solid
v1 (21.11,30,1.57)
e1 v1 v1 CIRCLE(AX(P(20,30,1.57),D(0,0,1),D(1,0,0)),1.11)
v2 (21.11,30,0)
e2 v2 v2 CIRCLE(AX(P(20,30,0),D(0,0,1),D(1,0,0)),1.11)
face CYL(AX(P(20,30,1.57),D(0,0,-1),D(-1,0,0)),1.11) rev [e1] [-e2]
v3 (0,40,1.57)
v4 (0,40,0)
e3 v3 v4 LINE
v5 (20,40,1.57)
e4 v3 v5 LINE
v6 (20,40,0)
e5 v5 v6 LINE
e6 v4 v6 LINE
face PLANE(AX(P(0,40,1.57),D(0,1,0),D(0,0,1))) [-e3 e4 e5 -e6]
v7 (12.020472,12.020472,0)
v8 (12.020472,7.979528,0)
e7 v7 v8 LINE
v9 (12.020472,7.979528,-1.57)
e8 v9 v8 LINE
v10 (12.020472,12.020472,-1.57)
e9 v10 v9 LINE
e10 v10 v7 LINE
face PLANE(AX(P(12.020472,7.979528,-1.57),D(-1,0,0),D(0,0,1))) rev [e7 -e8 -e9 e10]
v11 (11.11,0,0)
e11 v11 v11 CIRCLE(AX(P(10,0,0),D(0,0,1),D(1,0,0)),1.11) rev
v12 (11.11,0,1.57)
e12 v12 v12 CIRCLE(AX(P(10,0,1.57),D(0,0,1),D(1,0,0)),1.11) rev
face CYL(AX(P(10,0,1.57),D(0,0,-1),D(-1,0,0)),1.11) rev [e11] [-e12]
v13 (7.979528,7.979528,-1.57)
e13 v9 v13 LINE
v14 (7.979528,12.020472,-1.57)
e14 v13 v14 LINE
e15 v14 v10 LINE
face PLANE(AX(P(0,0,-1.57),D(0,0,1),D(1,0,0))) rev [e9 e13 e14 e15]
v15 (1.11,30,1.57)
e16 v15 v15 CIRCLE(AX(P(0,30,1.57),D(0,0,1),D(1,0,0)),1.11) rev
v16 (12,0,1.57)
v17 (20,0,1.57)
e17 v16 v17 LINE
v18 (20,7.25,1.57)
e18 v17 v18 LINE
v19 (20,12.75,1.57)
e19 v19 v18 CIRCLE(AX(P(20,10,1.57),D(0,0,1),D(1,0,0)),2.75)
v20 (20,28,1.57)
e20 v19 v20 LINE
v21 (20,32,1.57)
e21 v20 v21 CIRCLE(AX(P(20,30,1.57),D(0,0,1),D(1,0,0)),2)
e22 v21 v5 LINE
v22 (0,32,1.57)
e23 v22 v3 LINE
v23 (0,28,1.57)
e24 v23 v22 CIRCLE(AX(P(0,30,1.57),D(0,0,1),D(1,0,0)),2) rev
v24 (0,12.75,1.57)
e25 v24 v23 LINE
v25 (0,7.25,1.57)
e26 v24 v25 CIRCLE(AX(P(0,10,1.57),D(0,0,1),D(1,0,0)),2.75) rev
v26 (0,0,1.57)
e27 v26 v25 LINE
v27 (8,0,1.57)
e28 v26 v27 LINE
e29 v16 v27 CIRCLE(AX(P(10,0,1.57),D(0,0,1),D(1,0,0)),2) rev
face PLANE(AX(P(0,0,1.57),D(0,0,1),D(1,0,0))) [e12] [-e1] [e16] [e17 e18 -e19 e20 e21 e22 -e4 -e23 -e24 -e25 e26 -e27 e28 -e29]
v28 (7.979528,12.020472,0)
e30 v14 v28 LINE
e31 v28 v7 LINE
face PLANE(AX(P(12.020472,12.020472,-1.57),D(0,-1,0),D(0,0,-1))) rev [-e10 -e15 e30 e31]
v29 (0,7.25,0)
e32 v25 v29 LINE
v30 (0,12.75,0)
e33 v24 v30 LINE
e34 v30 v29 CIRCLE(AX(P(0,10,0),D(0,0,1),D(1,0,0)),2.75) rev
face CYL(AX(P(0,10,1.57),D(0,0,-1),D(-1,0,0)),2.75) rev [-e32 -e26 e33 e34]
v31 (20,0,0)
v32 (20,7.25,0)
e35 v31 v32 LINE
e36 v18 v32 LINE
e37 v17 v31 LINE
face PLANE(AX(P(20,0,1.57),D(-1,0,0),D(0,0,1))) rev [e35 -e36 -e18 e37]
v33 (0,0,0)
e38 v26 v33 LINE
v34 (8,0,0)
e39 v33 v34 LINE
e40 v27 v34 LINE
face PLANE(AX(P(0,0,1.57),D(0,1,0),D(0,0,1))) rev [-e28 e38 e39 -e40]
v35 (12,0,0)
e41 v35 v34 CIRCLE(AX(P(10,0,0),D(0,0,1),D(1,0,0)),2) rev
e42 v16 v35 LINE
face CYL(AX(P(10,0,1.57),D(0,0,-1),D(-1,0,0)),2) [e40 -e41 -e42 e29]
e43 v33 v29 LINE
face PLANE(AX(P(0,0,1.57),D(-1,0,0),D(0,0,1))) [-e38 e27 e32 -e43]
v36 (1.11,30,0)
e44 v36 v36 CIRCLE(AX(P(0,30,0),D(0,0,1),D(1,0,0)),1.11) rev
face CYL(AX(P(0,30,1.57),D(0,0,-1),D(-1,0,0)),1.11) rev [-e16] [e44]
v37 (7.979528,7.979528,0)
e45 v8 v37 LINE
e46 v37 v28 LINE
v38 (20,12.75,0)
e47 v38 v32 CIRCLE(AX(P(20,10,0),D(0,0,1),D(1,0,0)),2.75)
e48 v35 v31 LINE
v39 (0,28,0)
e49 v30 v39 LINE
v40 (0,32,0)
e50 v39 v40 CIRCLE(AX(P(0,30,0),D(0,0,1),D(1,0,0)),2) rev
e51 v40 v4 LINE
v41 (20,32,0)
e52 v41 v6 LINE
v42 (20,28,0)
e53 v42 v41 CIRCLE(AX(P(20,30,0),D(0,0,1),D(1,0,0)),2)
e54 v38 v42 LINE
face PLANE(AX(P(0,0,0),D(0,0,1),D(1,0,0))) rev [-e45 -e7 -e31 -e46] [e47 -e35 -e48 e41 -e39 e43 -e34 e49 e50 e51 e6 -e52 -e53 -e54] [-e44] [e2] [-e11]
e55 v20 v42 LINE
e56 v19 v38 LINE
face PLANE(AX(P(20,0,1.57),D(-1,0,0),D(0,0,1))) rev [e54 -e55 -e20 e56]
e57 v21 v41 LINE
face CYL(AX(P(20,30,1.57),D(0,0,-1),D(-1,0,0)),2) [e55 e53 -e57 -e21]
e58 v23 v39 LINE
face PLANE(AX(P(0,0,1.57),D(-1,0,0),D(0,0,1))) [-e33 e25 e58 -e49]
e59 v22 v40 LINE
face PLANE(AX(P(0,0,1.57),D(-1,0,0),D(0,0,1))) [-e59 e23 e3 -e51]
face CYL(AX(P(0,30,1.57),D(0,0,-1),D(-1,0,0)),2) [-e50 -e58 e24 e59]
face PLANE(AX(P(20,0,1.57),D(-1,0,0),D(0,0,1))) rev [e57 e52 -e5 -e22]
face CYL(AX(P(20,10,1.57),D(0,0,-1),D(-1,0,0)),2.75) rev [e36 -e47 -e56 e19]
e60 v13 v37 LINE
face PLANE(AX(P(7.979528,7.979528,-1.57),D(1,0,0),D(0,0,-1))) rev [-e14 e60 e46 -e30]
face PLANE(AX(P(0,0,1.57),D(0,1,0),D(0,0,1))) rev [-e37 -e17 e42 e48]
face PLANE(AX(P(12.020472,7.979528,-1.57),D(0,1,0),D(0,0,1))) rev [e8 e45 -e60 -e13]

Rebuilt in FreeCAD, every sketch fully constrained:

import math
import FreeCAD as App
import Part
import Sketcher

V = App.Vector
Q = App.Units.Quantity

doc = App.newDocument("Part")
body = doc.addObject("PartDesign::Body", "Body")

sketch1 = body.newObject("Sketcher::SketchObject", "Sketch")
sketch1.AttachmentSupport = (doc.getObject("XY_Plane"), [""])
sketch1.MapMode = "FlatFace"
sketch1.addGeometry([
    Part.LineSegment(V(0, 0, 0), V(8, 0, 0)),
    Part.ArcOfCircle(Part.Circle(V(10, 0, 0), V(0, 0, 1), 2), math.radians(180), math.radians(360)),
    Part.LineSegment(V(12, 0, 0), V(20, 0, 0)),
    Part.LineSegment(V(20, 0, 0), V(20, 7.25, 0)),
    Part.ArcOfCircle(Part.Circle(V(20, 10, 0), V(0, 0, 1), 2.75), math.radians(90), math.radians(270)),
    Part.LineSegment(V(20, 12.75, 0), V(20, 28, 0)),
    Part.ArcOfCircle(Part.Circle(V(20, 30, 0), V(0, 0, 1), 2), math.radians(-90), math.radians(0)),
    Part.ArcOfCircle(Part.Circle(V(20, 30, 0), V(0, 0, 1), 2), math.radians(0), math.radians(90)),
    Part.LineSegment(V(20, 32, 0), V(20, 40, 0)),
    Part.LineSegment(V(20, 40, 0), V(0, 40, 0)),
    Part.LineSegment(V(0, 40, 0), V(0, 32, 0)),
    Part.ArcOfCircle(Part.Circle(V(0, 30, 0), V(0, 0, 1), 2), math.radians(90), math.radians(270)),
    Part.LineSegment(V(0, 28, 0), V(0, 12.75, 0)),
    Part.ArcOfCircle(Part.Circle(V(0, 10, 0), V(0, 0, 1), 2.75), math.radians(0), math.radians(90)),
    Part.ArcOfCircle(Part.Circle(V(0, 10, 0), V(0, 0, 1), 2.75), math.radians(-90), math.radians(0)),
    Part.LineSegment(V(0, 7.25, 0), V(0, 0, 0)),
    Part.ArcOfCircle(Part.Circle(V(10, 0, 0), V(0, 0, 1), 1.11), math.radians(180), math.radians(360)),
    Part.ArcOfCircle(Part.Circle(V(10, 0, 0), V(0, 0, 1), 1.11), math.radians(90), math.radians(180)),
    Part.ArcOfCircle(Part.Circle(V(10, 0, 0), V(0, 0, 1), 1.11), math.radians(0), math.radians(90)),
    Part.ArcOfCircle(Part.Circle(V(0, 30, 0), V(0, 0, 1), 1.11), math.radians(90), math.radians(270)),
    Part.ArcOfCircle(Part.Circle(V(0, 30, 0), V(0, 0, 1), 1.11), math.radians(0), math.radians(90)),
    Part.ArcOfCircle(Part.Circle(V(0, 30, 0), V(0, 0, 1), 1.11), math.radians(-90), math.radians(0)),
    Part.ArcOfCircle(Part.Circle(V(20, 30, 0), V(0, 0, 1), 1.11), math.radians(90), math.radians(270)),
    Part.ArcOfCircle(Part.Circle(V(20, 30, 0), V(0, 0, 1), 1.11), math.radians(0), math.radians(90)),
    Part.ArcOfCircle(Part.Circle(V(20, 30, 0), V(0, 0, 1), 1.11), math.radians(-90), math.radians(0)),
], False)
sketch1.addConstraint([
    Sketcher.Constraint("Coincident", 0, 2, 1, 1),
    Sketcher.Constraint("Coincident", 1, 2, 2, 1),
    Sketcher.Constraint("Coincident", 2, 2, 3, 1),
    Sketcher.Constraint("Coincident", 3, 2, 4, 2),
    Sketcher.Constraint("Coincident", 4, 1, 5, 1),
    Sketcher.Constraint("Coincident", 5, 2, 6, 1),
    Sketcher.Constraint("Tangent", 6, 2, 7, 1),
    Sketcher.Constraint("Coincident", 7, 2, 8, 1),
    Sketcher.Constraint("Coincident", 8, 2, 9, 1),
    Sketcher.Constraint("Coincident", 9, 2, 10, 1),
    Sketcher.Constraint("Coincident", 10, 2, 11, 1),
    Sketcher.Constraint("Coincident", 11, 2, 12, 1),
    Sketcher.Constraint("Coincident", 12, 2, 13, 2),
    Sketcher.Constraint("Tangent", 13, 1, 14, 2),
    Sketcher.Constraint("Coincident", 14, 1, 15, 1),
    Sketcher.Constraint("Coincident", 15, 2, 0, 1),
    Sketcher.Constraint("Tangent", 16, 1, 17, 2),
    Sketcher.Constraint("Tangent", 17, 1, 18, 2),
    Sketcher.Constraint("Tangent", 18, 1, 16, 2),
    Sketcher.Constraint("Tangent", 19, 1, 20, 2),
    Sketcher.Constraint("Tangent", 20, 1, 21, 2),
    Sketcher.Constraint("Tangent", 21, 1, 19, 2),
    Sketcher.Constraint("Tangent", 22, 1, 23, 2),
    Sketcher.Constraint("Tangent", 23, 1, 24, 2),
    Sketcher.Constraint("Tangent", 24, 1, 22, 2),
    Sketcher.Constraint("Horizontal", 0),
    Sketcher.Constraint("Horizontal", 2),
    Sketcher.Constraint("Vertical", 3),
    Sketcher.Constraint("Vertical", 5),
    Sketcher.Constraint("Vertical", 8),
    Sketcher.Constraint("Horizontal", 9),
    Sketcher.Constraint("Vertical", 10),
    Sketcher.Constraint("Vertical", 12),
    Sketcher.Constraint("Vertical", 15),
    Sketcher.Constraint("Coincident", 15, 2, -1, 1),
    Sketcher.Constraint("Coincident", 16, 3, 1, 3),
    Sketcher.Constraint("Coincident", 19, 3, 11, 3),
    Sketcher.Constraint("Coincident", 22, 3, 6, 3),
    Sketcher.Constraint("Equal", 1, 6),
    Sketcher.Constraint("Equal", 6, 7),
    Sketcher.Constraint("Equal", 7, 11),
    Sketcher.Constraint("Equal", 4, 13),
    Sketcher.Constraint("Equal", 13, 14),
    Sketcher.Constraint("Equal", 18, 19),
    Sketcher.Constraint("Equal", 21, 22),
    Sketcher.Constraint("PointOnObject", 1, 3, -1),
    Sketcher.Constraint("PointOnObject", 11, 3, -2),
    Sketcher.Constraint("PointOnObject", 13, 3, -2),
    Sketcher.Constraint("PointOnObject", 1, 2, -1),
    Sketcher.Constraint("PointOnObject", 9, 2, -2),
    Sketcher.Constraint("PointOnObject", 11, 2, -2),
    Sketcher.Constraint("PointOnObject", 16, 1, -1),
    Sketcher.Constraint("PointOnObject", 18, 1, -1),
    Sketcher.Constraint("PointOnObject", 19, 1, -2),
    Sketcher.Constraint("PointOnObject", 21, 1, -2),
    Sketcher.Constraint("Horizontal", 7, 3, 11, 3),
    Sketcher.Constraint("Horizontal", 4, 3, 13, 3),
    Sketcher.Constraint("Horizontal", 24, 3, 6, 2),
    Sketcher.Constraint("Horizontal", 14, 3, 13, 1),
    Sketcher.Constraint("Horizontal", 6, 2, 20, 1),
    Sketcher.Constraint("Horizontal", 20, 1, 23, 1),
    Sketcher.Constraint("Vertical", 4, 3, 6, 3),
    Sketcher.Constraint("Vertical", 24, 3, 2, 2),
    Sketcher.Constraint("Vertical", 3, 2, 4, 1),
    Sketcher.Constraint("Vertical", 5, 2, 7, 2),
    Sketcher.Constraint("Vertical", 18, 3, 17, 1),
    Sketcher.Constraint("Vertical", 8, 2, 22, 1),
    Sketcher.Constraint("Vertical", 22, 1, 24, 1),
    Sketcher.Constraint("Equal", 0, 2),
    Sketcher.Constraint("Equal", 2, 8),
    Sketcher.Constraint("Radius", 1, Q("2 mm")),
    Sketcher.Constraint("DistanceX", 0, 1, 0, 2, Q("8 mm")),
    Sketcher.Constraint("Radius", 4, Q("2.75 mm")),
    Sketcher.Constraint("Radius", 16, Q("1.11 mm")),
    Sketcher.Constraint("DistanceY", -1, 1, 4, 3, Q("10 mm")),
    Sketcher.Constraint("DistanceY", -1, 1, 6, 3, Q("30 mm")),
])
pad1 = body.newObject("PartDesign::Pad", "Pad")
pad1.Profile = sketch1
pad1.Length = 1.57

sketch2 = body.newObject("Sketcher::SketchObject", "Sketch001")
sketch2.AttachmentSupport = (doc.getObject("XY_Plane"), [""])
sketch2.MapMode = "FlatFace"
sketch2.addGeometry([
    Part.LineSegment(V(12.020472, 12.020472, 0), V(12.020472, 7.979528, 0)),
    Part.LineSegment(V(12.020472, 7.979528, 0), V(7.979528, 7.979528, 0)),
    Part.LineSegment(V(7.979528, 7.979528, 0), V(7.979528, 12.020472, 0)),
    Part.LineSegment(V(7.979528, 12.020472, 0), V(12.020472, 12.020472, 0)),
], False)
sketch2.addConstraint([
    Sketcher.Constraint("Coincident", 0, 2, 1, 1),
    Sketcher.Constraint("Coincident", 1, 2, 2, 1),
    Sketcher.Constraint("Coincident", 2, 2, 3, 1),
    Sketcher.Constraint("Coincident", 3, 2, 0, 1),
    Sketcher.Constraint("Vertical", 0),
    Sketcher.Constraint("Horizontal", 1),
    Sketcher.Constraint("Vertical", 2),
    Sketcher.Constraint("Horizontal", 3),
    Sketcher.Constraint("Equal", 3, 0),
    Sketcher.Constraint("DistanceX", 1, 2, 1, 1, Q("4.040945 mm")),
    Sketcher.Constraint("DistanceX", -1, 1, 0, 2, Q("12.020472 mm")),
    Sketcher.Constraint("DistanceY", -1, 1, 0, 2, Q("7.979528 mm")),
])
pad2 = body.newObject("PartDesign::Pad", "Pad001")
pad2.Profile = sketch2
pad2.Length = 1.57
pad2.Reversed = True

doc.recompute()
